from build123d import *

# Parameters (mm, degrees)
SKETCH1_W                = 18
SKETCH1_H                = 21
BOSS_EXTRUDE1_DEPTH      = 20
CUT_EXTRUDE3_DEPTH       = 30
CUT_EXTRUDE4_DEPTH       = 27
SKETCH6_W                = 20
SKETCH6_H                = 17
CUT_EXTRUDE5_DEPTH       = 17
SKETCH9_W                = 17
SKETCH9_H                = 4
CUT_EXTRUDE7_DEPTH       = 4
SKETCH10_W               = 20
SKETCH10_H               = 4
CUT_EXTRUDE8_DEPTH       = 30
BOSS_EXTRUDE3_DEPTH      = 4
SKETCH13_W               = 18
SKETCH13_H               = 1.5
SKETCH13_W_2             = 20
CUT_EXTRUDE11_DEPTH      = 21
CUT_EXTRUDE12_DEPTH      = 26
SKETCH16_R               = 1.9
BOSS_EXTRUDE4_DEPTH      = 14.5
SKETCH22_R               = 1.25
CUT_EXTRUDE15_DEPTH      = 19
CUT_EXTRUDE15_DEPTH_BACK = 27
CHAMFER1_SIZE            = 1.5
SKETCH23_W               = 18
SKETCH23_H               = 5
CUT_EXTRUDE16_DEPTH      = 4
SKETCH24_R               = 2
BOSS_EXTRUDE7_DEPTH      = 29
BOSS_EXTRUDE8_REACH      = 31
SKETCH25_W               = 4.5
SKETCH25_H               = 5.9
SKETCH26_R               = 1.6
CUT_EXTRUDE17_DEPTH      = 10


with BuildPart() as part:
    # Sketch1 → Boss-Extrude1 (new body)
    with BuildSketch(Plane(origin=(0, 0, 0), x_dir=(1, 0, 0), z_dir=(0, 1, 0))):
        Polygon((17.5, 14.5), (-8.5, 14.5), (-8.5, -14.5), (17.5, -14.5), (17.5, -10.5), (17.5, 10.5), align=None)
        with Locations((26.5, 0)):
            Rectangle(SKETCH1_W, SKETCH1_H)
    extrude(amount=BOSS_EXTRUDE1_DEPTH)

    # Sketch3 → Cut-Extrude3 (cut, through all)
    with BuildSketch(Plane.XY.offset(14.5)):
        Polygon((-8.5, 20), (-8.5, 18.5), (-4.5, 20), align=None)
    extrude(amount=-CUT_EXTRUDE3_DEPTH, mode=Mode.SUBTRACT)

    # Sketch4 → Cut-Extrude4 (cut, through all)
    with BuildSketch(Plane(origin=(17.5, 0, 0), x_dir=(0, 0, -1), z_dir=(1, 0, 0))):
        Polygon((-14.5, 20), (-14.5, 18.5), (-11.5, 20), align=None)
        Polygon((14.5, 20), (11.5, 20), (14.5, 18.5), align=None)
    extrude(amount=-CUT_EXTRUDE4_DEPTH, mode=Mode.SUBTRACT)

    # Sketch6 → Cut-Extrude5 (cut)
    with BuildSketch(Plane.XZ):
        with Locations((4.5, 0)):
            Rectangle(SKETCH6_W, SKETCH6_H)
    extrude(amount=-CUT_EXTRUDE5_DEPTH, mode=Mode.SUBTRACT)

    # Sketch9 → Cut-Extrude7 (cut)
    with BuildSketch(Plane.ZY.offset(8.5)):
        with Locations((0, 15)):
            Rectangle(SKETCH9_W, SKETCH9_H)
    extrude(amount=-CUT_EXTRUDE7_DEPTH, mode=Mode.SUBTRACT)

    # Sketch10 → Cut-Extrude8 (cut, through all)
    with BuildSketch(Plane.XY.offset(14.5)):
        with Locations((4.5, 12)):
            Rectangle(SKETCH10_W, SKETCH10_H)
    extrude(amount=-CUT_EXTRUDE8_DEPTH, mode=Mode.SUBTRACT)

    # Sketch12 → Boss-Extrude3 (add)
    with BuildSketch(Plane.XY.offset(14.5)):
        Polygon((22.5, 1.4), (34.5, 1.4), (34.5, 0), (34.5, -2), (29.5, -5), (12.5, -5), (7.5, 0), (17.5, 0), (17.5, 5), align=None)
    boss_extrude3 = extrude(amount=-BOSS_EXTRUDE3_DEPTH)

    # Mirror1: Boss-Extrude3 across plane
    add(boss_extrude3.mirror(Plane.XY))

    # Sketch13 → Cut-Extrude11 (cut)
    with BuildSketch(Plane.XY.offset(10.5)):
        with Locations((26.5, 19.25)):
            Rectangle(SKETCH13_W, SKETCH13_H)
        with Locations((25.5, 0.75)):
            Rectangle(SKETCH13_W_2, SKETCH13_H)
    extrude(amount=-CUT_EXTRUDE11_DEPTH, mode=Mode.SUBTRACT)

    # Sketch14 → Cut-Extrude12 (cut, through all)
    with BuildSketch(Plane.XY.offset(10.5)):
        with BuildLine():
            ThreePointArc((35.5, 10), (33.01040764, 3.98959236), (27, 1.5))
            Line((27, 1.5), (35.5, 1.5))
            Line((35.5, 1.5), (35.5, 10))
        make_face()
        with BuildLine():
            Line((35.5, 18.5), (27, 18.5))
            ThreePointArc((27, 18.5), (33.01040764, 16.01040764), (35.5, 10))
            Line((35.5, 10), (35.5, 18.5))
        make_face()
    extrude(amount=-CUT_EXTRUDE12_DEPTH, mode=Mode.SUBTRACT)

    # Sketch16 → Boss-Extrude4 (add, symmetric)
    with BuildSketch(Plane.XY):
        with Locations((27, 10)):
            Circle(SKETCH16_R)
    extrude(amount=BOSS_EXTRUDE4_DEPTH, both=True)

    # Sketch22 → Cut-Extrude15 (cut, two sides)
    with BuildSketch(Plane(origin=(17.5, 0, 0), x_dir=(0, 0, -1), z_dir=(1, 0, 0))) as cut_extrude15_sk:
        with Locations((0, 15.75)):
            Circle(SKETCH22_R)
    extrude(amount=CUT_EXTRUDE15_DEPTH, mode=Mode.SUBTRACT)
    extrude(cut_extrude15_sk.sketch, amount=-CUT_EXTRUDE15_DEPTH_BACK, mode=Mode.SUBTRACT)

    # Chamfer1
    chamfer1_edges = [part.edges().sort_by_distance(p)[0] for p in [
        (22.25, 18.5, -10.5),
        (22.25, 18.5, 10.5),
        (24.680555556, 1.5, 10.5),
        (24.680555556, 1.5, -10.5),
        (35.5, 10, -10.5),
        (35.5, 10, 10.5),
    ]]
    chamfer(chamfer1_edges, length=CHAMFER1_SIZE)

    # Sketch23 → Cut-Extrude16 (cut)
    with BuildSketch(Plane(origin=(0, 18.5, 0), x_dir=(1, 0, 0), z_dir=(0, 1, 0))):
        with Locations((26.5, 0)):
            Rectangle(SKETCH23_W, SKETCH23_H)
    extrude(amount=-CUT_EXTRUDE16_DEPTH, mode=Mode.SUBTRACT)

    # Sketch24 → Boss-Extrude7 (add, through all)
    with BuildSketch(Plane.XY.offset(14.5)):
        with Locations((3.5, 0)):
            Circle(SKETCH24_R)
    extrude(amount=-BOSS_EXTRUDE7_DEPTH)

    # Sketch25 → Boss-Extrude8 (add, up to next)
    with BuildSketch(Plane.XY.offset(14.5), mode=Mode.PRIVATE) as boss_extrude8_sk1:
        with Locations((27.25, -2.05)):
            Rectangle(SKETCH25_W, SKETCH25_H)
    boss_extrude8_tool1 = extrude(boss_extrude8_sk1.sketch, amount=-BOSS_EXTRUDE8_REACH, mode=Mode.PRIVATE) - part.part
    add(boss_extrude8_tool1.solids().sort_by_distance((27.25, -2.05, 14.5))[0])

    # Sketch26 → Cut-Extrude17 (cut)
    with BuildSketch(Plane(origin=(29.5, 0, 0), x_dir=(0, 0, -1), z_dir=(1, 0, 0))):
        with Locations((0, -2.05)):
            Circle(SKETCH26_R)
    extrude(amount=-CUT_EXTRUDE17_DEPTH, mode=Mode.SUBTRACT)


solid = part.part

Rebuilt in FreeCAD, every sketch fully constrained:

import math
import FreeCAD as App
import Part
import Sketcher

V = App.Vector
Q = App.Units.Quantity


def edges_at(feature, points):
    """Names of the edges that pass closest to the given points."""
    edges = feature.Shape.Edges
    near = lambda p: min(range(len(edges)), key=lambda i: edges[i].distToShape(Part.Vertex(*p))[0])
    return sorted({f"Edge{near(p) + 1}" for p in points})


def add_polygon(sketch, points):
    """Adds a closed chain of lines whose ends are joined by coincident constraints."""
    first, n = sketch.GeometryCount, len(points)
    for a, b in zip(points, points[1:] + points[:1]):
        sketch.addGeometry(Part.LineSegment(App.Vector(*a, 0), App.Vector(*b, 0)), False)
    for i in range(n):
        sketch.addConstraint(Sketcher.Constraint("Coincident", first + i, 2, first + (i + 1) % n, 1))

doc = App.newDocument("Part")
body = doc.addObject("PartDesign::Body", "Body")

sketch1 = doc.addObject("Sketcher::SketchObject", "Sketch")
body.addObject(sketch1)
sketch1.AttachmentSupport = (doc.XZ_Plane, [""])
sketch1.MapMode = "FlatFace"
add_polygon(sketch1, [(17.5, -14.5), (-8.5, -14.5), (-8.5, 14.5), (17.5, 14.5), (17.5, 10.5), (35.5, 10.5), (35.5, -10.5), (17.5, -10.5)])
sketch1.addConstraint(Sketcher.Constraint("Horizontal", 0))
sketch1.addConstraint(Sketcher.Constraint("Vertical", 1))
sketch1.addConstraint(Sketcher.Constraint("Horizontal", 2))
sketch1.addConstraint(Sketcher.Constraint("Vertical", 3))
sketch1.addConstraint(Sketcher.Constraint("Horizontal", 4))
sketch1.addConstraint(Sketcher.Constraint("Vertical", 5))
sketch1.addConstraint(Sketcher.Constraint("Horizontal", 6))
sketch1.addConstraint(Sketcher.Constraint("Vertical", 7))
sketch1.addConstraint(Sketcher.Constraint("Symmetric", 3, 2, 6, 2, -1))
sketch1.addConstraint(Sketcher.Constraint("Equal", 3, 7))
sketch1.addConstraint(Sketcher.Constraint("DistanceX", 0, 2, 0, 1, 26.0))
sketch1.addConstraint(Sketcher.Constraint("DistanceX", 4, 1, 4, 2, 18.0))
sketch1.addConstraint(Sketcher.Constraint("DistanceY", 1, 1, 1, 2, 29.0))
sketch1.addConstraint(Sketcher.Constraint("DistanceY", 3, 2, 3, 1, 4.0))
sketch1.addConstraint(Sketcher.Constraint("DistanceX", 0, 2, -1, 1, 8.5))
pad1 = doc.addObject("PartDesign::Pad", "Pad")
body.addObject(pad1)
pad1.Profile = sketch1
pad1.Length = 20
pad1.Reversed = True

sketch2 = doc.addObject("Sketcher::SketchObject", "Sketch001")
body.addObject(sketch2)
sketch2.AttachmentSupport = (doc.XY_Plane, [""])
sketch2.MapMode = "FlatFace"
sketch2.AttachmentOffset = App.Placement(V(0, 0, 14.5), App.Rotation())
add_polygon(sketch2, [(-8.5, 20), (-8.5, 18.5), (-4.5, 20)])
sketch2.addConstraint(Sketcher.Constraint("Vertical", 0))
sketch2.addConstraint(Sketcher.Constraint("Horizontal", 2))
sketch2.addConstraint(Sketcher.Constraint("DistanceX", 2, 2, 2, 1, 4.0))
sketch2.addConstraint(Sketcher.Constraint("DistanceY", 0, 2, 0, 1, 1.5))
sketch2.addConstraint(Sketcher.Constraint("DistanceY", -1, 1, 1, 2, 20.0))
sketch2.addConstraint(Sketcher.Constraint("DistanceX", 0, 2, -1, 1, 8.5))
pocket1 = doc.addObject("PartDesign::Pocket", "Pocket")
body.addObject(pocket1)
pocket1.Profile = sketch2
pocket1.Type = "ThroughAll"

sketch3 = doc.addObject("Sketcher::SketchObject", "Sketch002")
body.addObject(sketch3)
sketch3.AttachmentSupport = (doc.YZ_Plane, [""])
sketch3.MapMode = "FlatFace"
sketch3.AttachmentOffset = App.Placement(V(0, 0, 17.5), App.Rotation())
add_polygon(sketch3, [(20, 14.5), (18.5, 14.5), (20, 11.5)])
add_polygon(sketch3, [(20, -14.5), (20, -11.5), (18.5, -14.5)])
sketch3.addConstraint(Sketcher.Constraint("Horizontal", 0))
sketch3.addConstraint(Sketcher.Constraint("Vertical", 2))
sketch3.addConstraint(Sketcher.Constraint("Vertical", 3))
sketch3.addConstraint(Sketcher.Constraint("Horizontal", 5))
sketch3.addConstraint(Sketcher.Constraint("Symmetric", 1, 2, 3, 2, -1))
sketch3.addConstraint(Sketcher.Constraint("Symmetric", 0, 2, 4, 2, -1))
sketch3.addConstraint(Sketcher.Constraint("DistanceY", 2, 1, 2, 2, 3.0))
sketch3.addConstraint(Sketcher.Constraint("DistanceX", 0, 2, 0, 1, 1.5))
sketch3.addConstraint(Sketcher.Constraint("DistanceX", -1, 1, 1, 2, 20.0))
sketch3.addConstraint(Sketcher.Constraint("DistanceY", 3, 2, 1, 2, 23.0))
pocket2 = doc.addObject("PartDesign::Pocket", "Pocket001")
body.addObject(pocket2)
pocket2.Profile = sketch3
pocket2.Type = "ThroughAll"

sketch4 = doc.addObject("Sketcher::SketchObject", "Sketch003")
body.addObject(sketch4)
sketch4.AttachmentSupport = (doc.XZ_Plane, [""])
sketch4.MapMode = "FlatFace"
add_polygon(sketch4, [(-6, 8), (-6, -8), (14, -8), (14, 8)])
sketch4.addConstraint(Sketcher.Constraint("Vertical", 0))
sketch4.addConstraint(Sketcher.Constraint("Horizontal", 1))
sketch4.addConstraint(Sketcher.Constraint("Vertical", 2))
sketch4.addConstraint(Sketcher.Constraint("Horizontal", 3))
sketch4.addConstraint(Sketcher.Constraint("DistanceX", 1, 1, 1, 2, 20.0))
sketch4.addConstraint(Sketcher.Constraint("DistanceY", 0, 2, 0, 1, 17.0))
sketch4.addConstraint(Sketcher.Constraint("DistanceX", 0, 2, -1, 1, 5.5))
sketch4.addConstraint(Sketcher.Constraint("DistanceY", 0, 2, -1, 1, 8.5))
pocket3 = doc.addObject("PartDesign::Pocket", "Pocket002")
body.addObject(pocket3)
pocket3.Profile = sketch4
pocket3.Length = 17

sketch5 = doc.addObject("Sketcher::SketchObject", "Sketch004")
body.addObject(sketch5)
sketch5.AttachmentSupport = (doc.YZ_Plane, [""])
sketch5.MapMode = "FlatFace"
sketch5.AttachmentOffset = App.Placement(V(0, 0, -8.5), App.Rotation())
add_polygon(sketch5, [(17, -8.5), (13, -8.5), (13, 8.5), (17, 8.5)])
sketch5.addConstraint(Sketcher.Constraint("Horizontal", 0))
sketch5.addConstraint(Sketcher.Constraint("Vertical", 1))
sketch5.addConstraint(Sketcher.Constraint("Horizontal", 2))
sketch5.addConstraint(Sketcher.Constraint("Vertical", 3))
sketch5.addConstraint(Sketcher.Constraint("DistanceX", 0, 2, 0, 1, 4.0))
sketch5.addConstraint(Sketcher.Constraint("DistanceY", 1, 1, 1, 2, 17.0))
sketch5.addConstraint(Sketcher.Constraint("DistanceX", -1, 1, 0, 2, 13.0))
sketch5.addConstraint(Sketcher.Constraint("DistanceY", 0, 2, -1, 1, 8.5))
pocket4 = doc.addObject("PartDesign::Pocket", "Pocket003")
body.addObject(pocket4)
pocket4.Profile = sketch5
pocket4.Length = 4
pocket4.Reversed = True

sketch6 = doc.addObject("Sketcher::SketchObject", "Sketch005")
body.addObject(sketch6)
sketch6.AttachmentSupport = (doc.XY_Plane, [""])
sketch6.MapMode = "FlatFace"
sketch6.AttachmentOffset = App.Placement(V(0, 0, 14.5), App.Rotation())
add_polygon(sketch6, [(-5.5, 14), (-5.5, 10), (14.5, 10), (14.5, 14)])
sketch6.addConstraint(Sketcher.Constraint("Vertical", 0))
sketch6.addConstraint(Sketcher.Constraint("Horizontal", 1))
sketch6.addConstraint(Sketcher.Constraint("Vertical", 2))
sketch6.addConstraint(Sketcher.Constraint("Horizontal", 3))
sketch6.addConstraint(Sketcher.Constraint("DistanceX", 1, 1, 1, 2, 20.0))
sketch6.addConstraint(Sketcher.Constraint("DistanceY", 0, 2, 0, 1, 4.0))
sketch6.addConstraint(Sketcher.Constraint("DistanceY", -1, 1, 0, 2, 10.0))
sketch6.addConstraint(Sketcher.Constraint("DistanceX", 0, 2, -1, 1, 5.5))
pocket5 = doc.addObject("PartDesign::Pocket", "Pocket004")
body.addObject(pocket5)
pocket5.Profile = sketch6
pocket5.Type = "ThroughAll"

sketch7 = doc.addObject("Sketcher::SketchObject", "Sketch006")
body.addObject(sketch7)
sketch7.AttachmentSupport = (doc.XY_Plane, [""])
sketch7.MapMode = "FlatFace"
sketch7.AttachmentOffset = App.Placement(V(0, 0, 14.5), App.Rotation())
add_polygon(sketch7, [(34.5, 1.4), (22.5, 1.4), (17.5, 5), (17.5, 0), (7.5, 0), (12.5, -5), (29.5, -5), (34.5, -2)])
sketch7.addConstraint(Sketcher.Constraint("Horizontal", 0))
sketch7.addConstraint(Sketcher.Constraint("Vertical", 2))
sketch7.addConstraint(Sketcher.Constraint("Horizontal", 3))
sketch7.addConstraint(Sketcher.Constraint("Horizontal", 5))
sketch7.addConstraint(Sketcher.Constraint("Vertical", 7))
sketch7.addConstraint(Sketcher.Constraint("PointOnObject", 2, 2, -1))
sketch7.addConstraint(Sketcher.Constraint("DistanceX", 0, 2, 0, 1, 12.0))
sketch7.addConstraint(Sketcher.Constraint("DistanceX", 3, 2, 3, 1, 10.0))
sketch7.addConstraint(Sketcher.Constraint("DistanceX", 5, 1, 5, 2, 17.0))
sketch7.addConstraint(Sketcher.Constraint("DistanceY", 2, 2, 2, 1, 5.0))
sketch7.addConstraint(Sketcher.Constraint("Angle", 4, Q("-45 deg")))
sketch7.addConstraint(Sketcher.Constraint("DistanceY", 7, 1, 7, 2, 3.4))
sketch7.addConstraint(Sketcher.Constraint("DistanceY", 4, 2, -1, 1, 5.0))
sketch7.addConstraint(Sketcher.Constraint("DistanceY", 6, 2, -1, 1, 2.0))
sketch7.addConstraint(Sketcher.Constraint("DistanceX", 1, 2, 0, 2, 5.0))
sketch7.addConstraint(Sketcher.Constraint("DistanceX", -1, 1, 0, 2, 22.5))
pad2 = doc.addObject("PartDesign::Pad", "Pad001")
body.addObject(pad2)
pad2.Profile = sketch7
pad2.Length = 4
pad2.Reversed = True
doc.recompute()

mirrored = doc.addObject("PartDesign::Mirrored", "Mirrored")
body.addObject(mirrored)
mirrored.Originals = [pad2]
mirrored.MirrorPlane = (doc.XY_Plane, [""])
body.Tip = mirrored

sketch8 = doc.addObject("Sketcher::SketchObject", "Sketch007")
body.addObject(sketch8)
sketch8.AttachmentSupport = (doc.XY_Plane, [""])
sketch8.MapMode = "FlatFace"
sketch8.AttachmentOffset = App.Placement(V(0, 0, 10.5), App.Rotation())
add_polygon(sketch8, [(17.5, 20), (17.5, 18.5), (35.5, 18.5), (35.5, 20)])
add_polygon(sketch8, [(15.5, 1.5), (15.5, 0), (35.5, 0), (35.5, 1.5)])
sketch8.addConstraint(Sketcher.Constraint("Vertical", 0))
sketch8.addConstraint(Sketcher.Constraint("Horizontal", 1))
sketch8.addConstraint(Sketcher.Constraint("Vertical", 2))
sketch8.addConstraint(Sketcher.Constraint("Horizontal", 3))
sketch8.addConstraint(Sketcher.Constraint("Vertical", 4))
sketch8.addConstraint(Sketcher.Constraint("Horizontal", 5))
sketch8.addConstraint(Sketcher.Constraint("Vertical", 6))
sketch8.addConstraint(Sketcher.Constraint("Horizontal", 7))
sketch8.addConstraint(Sketcher.Constraint("PointOnObject", 4, 2, -1))
sketch8.addConstraint(Sketcher.Constraint("Vertical", 2, 2, 5, 2))
sketch8.addConstraint(Sketcher.Constraint("Equal", 2, 4))
sketch8.addConstraint(Sketcher.Constraint("DistanceX", 1, 1, 1, 2, 18.0))
sketch8.addConstraint(Sketcher.Constraint("DistanceX", 5, 1, 5, 2, 20.0))
sketch8.addConstraint(Sketcher.Constraint("DistanceY", 0, 2, 0, 1, 1.5))
sketch8.addConstraint(Sketcher.Constraint("DistanceY", -1, 1, 2, 2, 20.0))
sketch8.addConstraint(Sketcher.Constraint("DistanceX", -1, 1, 0, 2, 17.5))
pocket6 = doc.addObject("PartDesign::Pocket", "Pocket005")
body.addObject(pocket6)
pocket6.Profile = sketch8
pocket6.Length = 21

sketch9 = doc.addObject("Sketcher::SketchObject", "Sketch008")
body.addObject(sketch9)
sketch9.AttachmentSupport = (doc.XY_Plane, [""])
sketch9.MapMode = "FlatFace"
sketch9.AttachmentOffset = App.Placement(V(0, 0, 10.5), App.Rotation())
sketch9.addGeometry(Part.ArcOfCircle(Part.Circle(V(27, 10, 0), V(0, 0, 1), 8), math.radians(-90), math.radians(0)), False)
sketch9.addGeometry(Part.LineSegment(V(27, 2, 0), V(36, 2, 0)), False)
sketch9.addGeometry(Part.LineSegment(V(36, 2, 0), V(36, 10, 0)), False)
sketch9.addGeometry(Part.LineSegment(V(36, 18, 0), V(27, 18, 0)), False)
sketch9.addGeometry(Part.ArcOfCircle(Part.Circle(V(27, 10, 0), V(0, 0, 1), 8), math.radians(0), math.radians(90)), False)
sketch9.addGeometry(Part.LineSegment(V(36, 10, 0), V(36, 18, 0)), False)
sketch9.addConstraint(Sketcher.Constraint("Tangent", 0, 1, 1, 1))
sketch9.addConstraint(Sketcher.Constraint("Coincident", 1, 2, 2, 1))
sketch9.addConstraint(Sketcher.Constraint("Tangent", 2, 2, 0, 2))
sketch9.addConstraint(Sketcher.Constraint("Tangent", 3, 2, 4, 2))
sketch9.addConstraint(Sketcher.Constraint("Tangent", 4, 1, 5, 1))
sketch9.addConstraint(Sketcher.Constraint("Coincident", 5, 2, 3, 1))
sketch9.addConstraint(Sketcher.Constraint("Horizontal", 1))
sketch9.addConstraint(Sketcher.Constraint("Vertical", 2))
sketch9.addConstraint(Sketcher.Constraint("Horizontal", 3))
sketch9.addConstraint(Sketcher.Constraint("Vertical", 5))
sketch9.addConstraint(Sketcher.Constraint("Coincident", 4, 3, 0, 3))
sketch9.addConstraint(Sketcher.Constraint("Equal", 0, 4))
sketch9.addConstraint(Sketcher.Constraint("Radius", 0, 8.5))
sketch9.addConstraint(Sketcher.Constraint("DistanceX", -1, 1, 0, 3, 27.0))
sketch9.addConstraint(Sketcher.Constraint("DistanceY", -1, 1, 0, 3, 10.0))
pocket7 = doc.addObject("PartDesign::Pocket", "Pocket006")
body.addObject(pocket7)
pocket7.Profile = sketch9
pocket7.Type = "ThroughAll"

sketch10 = doc.addObject("Sketcher::SketchObject", "Sketch009")
body.addObject(sketch10)
sketch10.AttachmentSupport = (doc.XY_Plane, [""])
sketch10.MapMode = "FlatFace"
sketch10.addGeometry(Part.Circle(V(27, 10, 0), V(0, 0, 1), 1.9), False)
sketch10.addConstraint(Sketcher.Constraint("Diameter", 0, 3.8))
sketch10.addConstraint(Sketcher.Constraint("DistanceX", -1, 1, 0, 3, 27.0))
sketch10.addConstraint(Sketcher.Constraint("DistanceY", -1, 1, 0, 3, 10.0))
pad3 = doc.addObject("PartDesign::Pad", "Pad002")
body.addObject(pad3)
pad3.Profile = sketch10
pad3.Length = 29
pad3.Midplane = True

sketch11 = doc.addObject("Sketcher::SketchObject", "Sketch010")
body.addObject(sketch11)
sketch11.AttachmentSupport = (doc.YZ_Plane, [""])
sketch11.MapMode = "FlatFace"
sketch11.AttachmentOffset = App.Placement(V(0, 0, 17.5), App.Rotation())
sketch11.addGeometry(Part.Circle(V(15.8, 0, 0), V(0, 0, 1), 1.2), False)
sketch11.addConstraint(Sketcher.Constraint("PointOnObject", 0, 3, -1))
sketch11.addConstraint(Sketcher.Constraint("Diameter", 0, 2.5))
sketch11.addConstraint(Sketcher.Constraint("DistanceX", -1, 1, 0, 3, 15.75))
pocket8 = doc.addObject("PartDesign::Pocket", "Pocket007")
body.addObject(pocket8)
pocket8.Profile = sketch11
pocket8.Type = "ThroughAll"
pocket8.Midplane = True
doc.recompute()

chamfer = doc.addObject("PartDesign::Chamfer", "Chamfer")
body.addObject(chamfer)
chamfer.Base = (pocket8, edges_at(pocket8, [
    (22.25, 18.5, -10.5),
    (22.25, 18.5, 10.5),
    (24.681, 1.5, 10.5),
    (24.681, 1.5, -10.5),
    (33.01, 3.99, -10.5),
    (33.01, 3.99, 10.5),
]))
chamfer.Size = 1.5

sketch12 = doc.addObject("Sketcher::SketchObject", "Sketch011")
body.addObject(sketch12)
sketch12.AttachmentSupport = (doc.XZ_Plane, [""])
sketch12.MapMode = "FlatFace"
sketch12.AttachmentOffset = App.Placement(V(0, 0, -18.5), App.Rotation())
add_polygon(sketch12, [(18, -2), (18, 2), (36, 2), (36, -2)])
sketch12.addConstraint(Sketcher.Constraint("Vertical", 0))
sketch12.addConstraint(Sketcher.Constraint("Horizontal", 1))
sketch12.addConstraint(Sketcher.Constraint("Vertical", 2))
sketch12.addConstraint(Sketcher.Constraint("Horizontal", 3))
sketch12.addConstraint(Sketcher.Constraint("DistanceX", 1, 1, 1, 2, 18.0))
sketch12.addConstraint(Sketcher.Constraint("DistanceY", 0, 1, 0, 2, 5.0))
sketch12.addConstraint(Sketcher.Constraint("DistanceX", -1, 1, 0, 2, 17.5))
sketch12.addConstraint(Sketcher.Constraint("DistanceY", -1, 1, 0, 2, 2.5))
pocket9 = doc.addObject("PartDesign::Pocket", "Pocket008")
body.addObject(pocket9)
pocket9.Profile = sketch12
pocket9.Length = 4
pocket9.Reversed = True

sketch13 = doc.addObject("Sketcher::SketchObject", "Sketch012")
body.addObject(sketch13)
sketch13.AttachmentSupport = (doc.XY_Plane, [""])
sketch13.MapMode = "FlatFace"
sketch13.AttachmentOffset = App.Placement(V(0, 0, 14.5), App.Rotation())
sketch13.addGeometry(Part.Circle(V(3.5, 0, 0), V(0, 0, 1), 2), False)
sketch13.addConstraint(Sketcher.Constraint("PointOnObject", 0, 3, -1))
sketch13.addConstraint(Sketcher.Constraint("Diameter", 0, 4.0))
sketch13.addConstraint(Sketcher.Constraint("DistanceX", -1, 1, 0, 3, 3.5))
pad4 = doc.addObject("PartDesign::Pad", "Pad003")
body.addObject(pad4)
pad4.Profile = sketch13
pad4.Type = "UpToLast"
pad4.Reversed = True

sketch14 = doc.addObject("Sketcher::SketchObject", "Sketch013")
body.addObject(sketch14)
sketch14.AttachmentSupport = (doc.XY_Plane, [""])
sketch14.MapMode = "FlatFace"
sketch14.AttachmentOffset = App.Placement(V(0, 0, 14.5), App.Rotation())
add_polygon(sketch14, [(25, 0.9), (25, -5), (29.5, -5), (29.5, 0.9)])
sketch14.addConstraint(Sketcher.Constraint("Vertical", 0))
sketch14.addConstraint(Sketcher.Constraint("Horizontal", 1))
sketch14.addConstraint(Sketcher.Constraint("Vertical", 2))
sketch14.addConstraint(Sketcher.Constraint("Horizontal", 3))
sketch14.addConstraint(Sketcher.Constraint("DistanceX", 1, 1, 1, 2, 4.5))
sketch14.addConstraint(Sketcher.Constraint("DistanceY", 0, 2, 0, 1, 5.9))
sketch14.addConstraint(Sketcher.Constraint("DistanceX", -1, 1, 0, 2, 25.0))
sketch14.addConstraint(Sketcher.Constraint("DistanceY", 0, 2, -1, 1, 5.0))
pad5 = doc.addObject("PartDesign::Pad", "Pad004")
body.addObject(pad5)
pad5.Profile = sketch14
pad5.Length = 25
pad5.Reversed = True

sketch15 = doc.addObject("Sketcher::SketchObject", "Sketch014")
body.addObject(sketch15)
sketch15.AttachmentSupport = (doc.YZ_Plane, [""])
sketch15.MapMode = "FlatFace"
sketch15.AttachmentOffset = App.Placement(V(0, 0, 29.5), App.Rotation())
sketch15.addGeometry(Part.Circle(V(-2, 0, 0), V(0, 0, 1), 1.6), False)
sketch15.addConstraint(Sketcher.Constraint("PointOnObject", 0, 3, -1))
sketch15.addConstraint(Sketcher.Constraint("Diameter", 0, 3.2))
sketch15.addConstraint(Sketcher.Constraint("DistanceX", 0, 3, -1, 1, 2.05))
pocket10 = doc.addObject("PartDesign::Pocket", "Pocket009")
body.addObject(pocket10)
pocket10.Profile = sketch15
pocket10.Length = 10

doc.recompute()
